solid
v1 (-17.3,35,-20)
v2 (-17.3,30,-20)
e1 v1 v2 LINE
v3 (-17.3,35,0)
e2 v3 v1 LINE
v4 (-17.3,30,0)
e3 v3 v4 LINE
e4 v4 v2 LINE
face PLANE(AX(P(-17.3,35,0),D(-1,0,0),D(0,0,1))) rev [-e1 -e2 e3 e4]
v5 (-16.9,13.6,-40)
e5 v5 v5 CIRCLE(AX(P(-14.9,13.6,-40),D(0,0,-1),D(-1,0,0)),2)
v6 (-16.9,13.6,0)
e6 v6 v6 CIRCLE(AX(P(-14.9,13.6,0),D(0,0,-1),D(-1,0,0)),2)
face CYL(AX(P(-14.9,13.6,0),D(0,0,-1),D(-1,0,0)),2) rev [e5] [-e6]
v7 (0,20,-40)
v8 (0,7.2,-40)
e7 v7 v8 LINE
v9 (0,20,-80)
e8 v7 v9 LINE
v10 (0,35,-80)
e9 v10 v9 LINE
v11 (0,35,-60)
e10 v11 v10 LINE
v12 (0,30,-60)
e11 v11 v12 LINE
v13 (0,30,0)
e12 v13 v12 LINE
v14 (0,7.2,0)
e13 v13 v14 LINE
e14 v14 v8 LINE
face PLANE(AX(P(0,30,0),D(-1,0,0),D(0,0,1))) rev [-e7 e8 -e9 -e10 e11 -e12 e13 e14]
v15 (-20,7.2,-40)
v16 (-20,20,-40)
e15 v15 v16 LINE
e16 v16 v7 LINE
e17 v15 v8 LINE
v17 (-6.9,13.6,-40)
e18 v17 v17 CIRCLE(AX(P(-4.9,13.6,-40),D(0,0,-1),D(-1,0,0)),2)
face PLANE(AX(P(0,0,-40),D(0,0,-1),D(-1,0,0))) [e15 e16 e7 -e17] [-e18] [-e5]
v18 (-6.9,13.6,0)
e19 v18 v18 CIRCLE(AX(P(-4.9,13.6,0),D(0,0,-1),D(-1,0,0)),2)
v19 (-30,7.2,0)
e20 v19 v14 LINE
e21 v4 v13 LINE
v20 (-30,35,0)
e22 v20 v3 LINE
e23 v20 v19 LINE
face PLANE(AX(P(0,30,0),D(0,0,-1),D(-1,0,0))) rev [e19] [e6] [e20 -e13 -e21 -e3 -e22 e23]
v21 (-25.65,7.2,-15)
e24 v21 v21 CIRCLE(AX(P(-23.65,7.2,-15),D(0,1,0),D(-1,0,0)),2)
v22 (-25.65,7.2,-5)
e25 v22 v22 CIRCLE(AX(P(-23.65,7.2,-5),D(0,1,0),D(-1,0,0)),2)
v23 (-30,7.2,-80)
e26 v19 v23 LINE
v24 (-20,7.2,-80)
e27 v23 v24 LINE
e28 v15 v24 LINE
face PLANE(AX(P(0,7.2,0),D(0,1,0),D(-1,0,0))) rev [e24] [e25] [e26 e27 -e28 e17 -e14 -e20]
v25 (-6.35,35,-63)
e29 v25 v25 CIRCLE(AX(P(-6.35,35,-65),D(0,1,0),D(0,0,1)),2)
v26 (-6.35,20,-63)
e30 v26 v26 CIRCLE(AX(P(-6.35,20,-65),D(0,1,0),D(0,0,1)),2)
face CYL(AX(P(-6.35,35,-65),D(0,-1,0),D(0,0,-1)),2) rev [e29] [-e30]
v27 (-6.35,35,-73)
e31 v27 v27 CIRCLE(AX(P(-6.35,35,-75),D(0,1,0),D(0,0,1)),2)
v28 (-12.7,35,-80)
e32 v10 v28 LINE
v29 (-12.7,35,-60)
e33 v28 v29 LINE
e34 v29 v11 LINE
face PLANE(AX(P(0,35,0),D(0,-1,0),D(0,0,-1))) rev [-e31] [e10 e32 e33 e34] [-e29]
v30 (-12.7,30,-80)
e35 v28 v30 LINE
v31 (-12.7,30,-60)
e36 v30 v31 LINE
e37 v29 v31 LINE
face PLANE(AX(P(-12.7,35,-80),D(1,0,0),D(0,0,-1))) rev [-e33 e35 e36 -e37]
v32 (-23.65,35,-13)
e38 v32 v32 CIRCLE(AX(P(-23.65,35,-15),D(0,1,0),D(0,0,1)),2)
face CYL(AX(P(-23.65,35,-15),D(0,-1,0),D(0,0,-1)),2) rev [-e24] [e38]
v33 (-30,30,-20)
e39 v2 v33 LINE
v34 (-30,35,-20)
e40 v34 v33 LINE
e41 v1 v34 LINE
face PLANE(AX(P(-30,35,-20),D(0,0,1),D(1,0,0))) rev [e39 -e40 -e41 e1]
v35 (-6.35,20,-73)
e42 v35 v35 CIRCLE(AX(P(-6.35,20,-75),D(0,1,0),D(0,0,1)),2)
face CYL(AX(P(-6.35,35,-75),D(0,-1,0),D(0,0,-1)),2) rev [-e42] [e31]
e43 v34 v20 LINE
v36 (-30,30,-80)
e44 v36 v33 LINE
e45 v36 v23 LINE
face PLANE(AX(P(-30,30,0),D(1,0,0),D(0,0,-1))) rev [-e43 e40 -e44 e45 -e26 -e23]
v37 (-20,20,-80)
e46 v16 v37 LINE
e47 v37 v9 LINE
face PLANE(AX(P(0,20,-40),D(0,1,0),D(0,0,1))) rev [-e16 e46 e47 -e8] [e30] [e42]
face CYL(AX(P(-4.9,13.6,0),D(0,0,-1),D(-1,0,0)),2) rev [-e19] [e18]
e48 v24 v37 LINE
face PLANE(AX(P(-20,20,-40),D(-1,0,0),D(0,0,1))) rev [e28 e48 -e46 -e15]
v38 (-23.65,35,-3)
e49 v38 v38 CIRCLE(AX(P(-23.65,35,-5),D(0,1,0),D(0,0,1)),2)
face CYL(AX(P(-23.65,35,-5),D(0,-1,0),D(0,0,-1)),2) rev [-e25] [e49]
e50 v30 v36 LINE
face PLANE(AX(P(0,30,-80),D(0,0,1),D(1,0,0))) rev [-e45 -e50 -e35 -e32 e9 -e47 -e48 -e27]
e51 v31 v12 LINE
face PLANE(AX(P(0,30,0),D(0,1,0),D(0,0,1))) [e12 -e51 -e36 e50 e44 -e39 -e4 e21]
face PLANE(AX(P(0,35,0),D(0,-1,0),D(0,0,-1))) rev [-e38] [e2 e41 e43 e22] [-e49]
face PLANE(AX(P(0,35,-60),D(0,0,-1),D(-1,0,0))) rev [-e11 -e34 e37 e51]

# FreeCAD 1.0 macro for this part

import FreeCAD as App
import Part
import Sketcher
from FreeCAD import Vector

doc = App.newDocument("Part")
params = doc.addObject("Spreadsheet::Sheet", "Params")
for row, (alias, value) in enumerate([
    ("sketch1_width", "30 mm"),
    ("sketch1_height", "80 mm"),
    ("pad1_length", "30 mm"),
    ("sketch2_diameter", "4 mm"),
    ("sketch2_height", "20 mm"),
    ("sketch2_width", "12.7 mm"),
    ("pad2_length", "5 mm"),
    ("sketch3_diameter", "4 mm"),
    ("sketch4_width", "20 mm"),
    ("pocket2_length", "40 mm"),
    ("sketch5_diameter", "4 mm"),
    ("sketch5_width", "30 mm"),
    ("sketch5_height", "7.2 mm"),
], start=1):
    params.set(f"A{row}", alias)
    params.set(f"B{row}", "=" + value)
    params.setAlias(f"B{row}", alias)

body = doc.addObject("PartDesign::Body", "Body")

# Sketch on XZ plane
sketch1 = body.newObject("Sketcher::SketchObject", "Sketch")
sketch1.AttachmentSupport = (doc.getObject("XZ_Plane"), [""])
sketch1.MapMode = "FlatFace"
sketch1.addGeometry([
    Part.LineSegment(Vector(-30, -80, 0), Vector(-30, 0, 0)),
    Part.LineSegment(Vector(-30, 0, 0), Vector(0, 0, 0)),
    Part.LineSegment(Vector(0, 0, 0), Vector(0, -80, 0)),
    Part.LineSegment(Vector(0, -80, 0), Vector(-30, -80, 0)),
], False)
sketch1.addConstraint([
    Sketcher.Constraint("Coincident", 0, 2, 1, 1),
    Sketcher.Constraint("Coincident", 1, 2, 2, 1),
    Sketcher.Constraint("Coincident", 2, 2, 3, 1),
    Sketcher.Constraint("Coincident", 3, 2, 0, 1),
    Sketcher.Constraint("Vertical", 0),
    Sketcher.Constraint("Horizontal", 1),
    Sketcher.Constraint("Vertical", 2),
    Sketcher.Constraint("Horizontal", 3),
    Sketcher.Constraint("Coincident", 1, 2, -1, 1),
    Sketcher.Constraint("DistanceX", 1, 1, 1, 2, 30.0),
    Sketcher.Constraint("DistanceY", 0, 1, 0, 2, 80.0),
])
sketch1.setExpression("Constraints[9]", "Params.sketch1_width")
sketch1.setExpression("Constraints[10]", "Params.sketch1_height")
pad1 = body.newObject("PartDesign::Pad", "Pad")
pad1.Profile = sketch1
pad1.setExpression("Length", "Params.pad1_length")
pad1.Reversed = True

# Sketch on XZ plane
sketch2 = body.newObject("Sketcher::SketchObject", "Sketch001")
sketch2.AttachmentSupport = (doc.getObject("XZ_Plane"), [""])
sketch2.MapMode = "FlatFace"
sketch2.AttachmentOffset = App.Placement(Vector(0, 0, -30), App.Rotation())
sketch2.addGeometry([
    Part.LineSegment(Vector(-30, -20, 0), Vector(-30, 0, 0)),  # 0
    Part.LineSegment(Vector(-30, 0, 0), Vector(-17.3, 0, 0)),  # 1
    Part.LineSegment(Vector(-17.3, 0, 0), Vector(-17.3, -20, 0)),  # 2
    Part.LineSegment(Vector(-17.3, -20, 0), Vector(-30, -20, 0)),  # 3
    Part.Circle(Vector(-23.6, -5, 0), Vector(0, 0, 1), 2),  # 4
    Part.Circle(Vector(-23.6, -15, 0), Vector(0, 0, 1), 2),  # 5
    Part.LineSegment(Vector(-12.7, -80, 0), Vector(-12.7, -60, 0)),  # 6
    Part.LineSegment(Vector(-12.7, -60, 0), Vector(0, -60, 0)),  # 7
    Part.LineSegment(Vector(0, -60, 0), Vector(0, -80, 0)),  # 8
    Part.LineSegment(Vector(0, -80, 0), Vector(-12.7, -80, 0)),  # 9
    Part.Circle(Vector(-6.3, -65, 0), Vector(0, 0, 1), 2),  # 10
    Part.Circle(Vector(-6.3, -75, 0), Vector(0, 0, 1), 2),  # 11
], False)
sketch2.addConstraint([
    Sketcher.Constraint("Coincident", 0, 2, 1, 1),
    Sketcher.Constraint("Coincident", 1, 2, 2, 1),
    Sketcher.Constraint("Coincident", 2, 2, 3, 1),
    Sketcher.Constraint("Coincident", 3, 2, 0, 1),
    Sketcher.Constraint("Coincident", 6, 2, 7, 1),
    Sketcher.Constraint("Coincident", 7, 2, 8, 1),
    Sketcher.Constraint("Coincident", 8, 2, 9, 1),
    Sketcher.Constraint("Coincident", 9, 2, 6, 1),
    Sketcher.Constraint("Vertical", 0),
    Sketcher.Constraint("Horizontal", 1),
    Sketcher.Constraint("Vertical", 2),
    Sketcher.Constraint("Horizontal", 3),
    Sketcher.Constraint("Vertical", 6),
    Sketcher.Constraint("Horizontal", 7),
    Sketcher.Constraint("Vertical", 8),
    Sketcher.Constraint("Horizontal", 9),
    Sketcher.Constraint("Equal", 4, 5),
    Sketcher.Constraint("Equal", 5, 10),
    Sketcher.Constraint("Equal", 10, 11),
    Sketcher.Constraint("PointOnObject", 0, 2, -1),
    Sketcher.Constraint("PointOnObject", 7, 2, -2),
    Sketcher.Constraint("Vertical", 4, 3, 5, 3),
    Sketcher.Constraint("Vertical", 10, 3, 11, 3),
    Sketcher.Constraint("Equal", 3, 7),
    Sketcher.Constraint("Equal", 2, 6),
    Sketcher.Constraint("Diameter", 4, 4.0),
    Sketcher.Constraint("DistanceY", 0, 1, 0, 2, 20.0),
    Sketcher.Constraint("DistanceX", 1, 1, 1, 2, 12.7),
    Sketcher.Constraint("DistanceY", 4, 3, -1, 1, 5.0),
    Sketcher.Constraint("DistanceY", 5, 3, -1, 1, 15.0),
    Sketcher.Constraint("DistanceY", 10, 3, -1, 1, 65.0),
    Sketcher.Constraint("DistanceY", 11, 3, -1, 1, 75.0),
    Sketcher.Constraint("DistanceX", 0, 2, -1, 1, 30.0),
    Sketcher.Constraint("DistanceY", 6, 2, -1, 1, 60.0),
    Sketcher.Constraint("DistanceX", 5, 3, 10, 3, 17.3),
    Sketcher.Constraint("DistanceX", 4, 3, -1, 1, 23.65),
])
sketch2.setExpression("Constraints[25]", "Params.sketch2_diameter")
sketch2.setExpression("Constraints[26]", "Params.sketch2_height")
sketch2.setExpression("Constraints[27]", "Params.sketch2_width")
pad2 = body.newObject("PartDesign::Pad", "Pad001")
pad2.Profile = sketch2
pad2.setExpression("Length", "Params.pad2_length")
pad2.Reversed = True

# Sketch on XZ plane
sketch3 = body.newObject("Sketcher::SketchObject", "Sketch002")
sketch3.AttachmentSupport = (doc.getObject("XZ_Plane"), [""])
sketch3.MapMode = "FlatFace"
sketch3.AttachmentOffset = App.Placement(Vector(0, 0, -35), App.Rotation())
sketch3.addGeometry([
    Part.Circle(Vector(-23.6, -15, 0), Vector(0, 0, 1), 2),
    Part.Circle(Vector(-23.6, -5, 0), Vector(0, 0, 1), 2),
    Part.Circle(Vector(-6.3, -75, 0), Vector(0, 0, 1), 2),
    Part.Circle(Vector(-6.3, -65, 0), Vector(0, 0, 1), 2),
], False)
sketch3.addConstraint([
    Sketcher.Constraint("Equal", 0, 1),
    Sketcher.Constraint("Equal", 1, 2),
    Sketcher.Constraint("Equal", 2, 3),
    Sketcher.Constraint("Vertical", 0, 3, 1, 3),
    Sketcher.Constraint("Vertical", 2, 3, 3, 3),
    Sketcher.Constraint("Diameter", 0, 4.0),
    Sketcher.Constraint("DistanceY", 0, 3, -1, 1, 15.0),
    Sketcher.Constraint("DistanceY", 1, 3, -1, 1, 5.0),
    Sketcher.Constraint("DistanceY", 2, 3, -1, 1, 75.0),
    Sketcher.Constraint("DistanceY", 3, 3, -1, 1, 65.0),
    Sketcher.Constraint("DistanceX", 0, 3, 2, 3, 17.3),
    Sketcher.Constraint("DistanceX", 0, 3, -1, 1, 23.65),
])
sketch3.setExpression("Constraints[5]", "Params.sketch3_diameter")
pocket1 = body.newObject("PartDesign::Pocket", "Pocket")
pocket1.Profile = sketch3
pocket1.Type = "ThroughAll"
pocket1.Reversed = True

# Sketch on XY plane
sketch4 = body.newObject("Sketcher::SketchObject", "Sketch003")
sketch4.AttachmentSupport = (doc.getObject("XY_Plane"), [""])
sketch4.MapMode = "FlatFace"
sketch4.AttachmentOffset = App.Placement(Vector(0, 0, -80), App.Rotation())
sketch4.addGeometry([
    Part.LineSegment(Vector(0, 20, 0), Vector(0, 0, 0)),
    Part.LineSegment(Vector(0, 0, 0), Vector(-20, 0, 0)),
    Part.LineSegment(Vector(-20, 0, 0), Vector(-20, 20, 0)),
    Part.LineSegment(Vector(-20, 20, 0), Vector(0, 20, 0)),
], False)
sketch4.addConstraint([
    Sketcher.Constraint("Coincident", 0, 2, 1, 1),
    Sketcher.Constraint("Coincident", 1, 2, 2, 1),
    Sketcher.Constraint("Coincident", 2, 2, 3, 1),
    Sketcher.Constraint("Coincident", 3, 2, 0, 1),
    Sketcher.Constraint("Vertical", 0),
    Sketcher.Constraint("Horizontal", 1),
    Sketcher.Constraint("Vertical", 2),
    Sketcher.Constraint("Horizontal", 3),
    Sketcher.Constraint("Coincident", 0, 2, -1, 1),
    Sketcher.Constraint("Equal", 3, 0),
    Sketcher.Constraint("DistanceX", 1, 2, 1, 1, 20.0),
])
sketch4.setExpression("Constraints[10]", "Params.sketch4_width")
pocket2 = body.newObject("PartDesign::Pocket", "Pocket001")
pocket2.Profile = sketch4
pocket2.setExpression("Length", "Params.pocket2_length")
pocket2.Reversed = True

# Sketch on XY plane
sketch5 = body.newObject("Sketcher::SketchObject", "Sketch004")
sketch5.AttachmentSupport = (doc.getObject("XY_Plane"), [""])
sketch5.MapMode = "FlatFace"
sketch5.AttachmentOffset = App.Placement(Vector(0, 0, -80), App.Rotation())
sketch5.addGeometry([
    Part.Circle(Vector(-4.9, 13.6, 0), Vector(0, 0, 1), 2),  # 0
    Part.Circle(Vector(-14.9, 13.6, 0), Vector(0, 0, 1), 2),  # 1
    Part.LineSegment(Vector(0, 7.2, 0), Vector(0, 0, 0)),  # 2
    Part.LineSegment(Vector(0, 0, 0), Vector(-30, 0, 0)),  # 3
    Part.LineSegment(Vector(-30, 0, 0), Vector(-30, 7.2, 0)),  # 4
    Part.LineSegment(Vector(-30, 7.2, 0), Vector(0, 7.2, 0)),  # 5
], False)
sketch5.addConstraint([
    Sketcher.Constraint("Coincident", 2, 2, 3, 1),
    Sketcher.Constraint("Coincident", 3, 2, 4, 1),
    Sketcher.Constraint("Coincident", 4, 2, 5, 1),
    Sketcher.Constraint("Coincident", 5, 2, 2, 1),
    Sketcher.Constraint("Vertical", 2),
    Sketcher.Constraint("Horizontal", 3),
    Sketcher.Constraint("Vertical", 4),
    Sketcher.Constraint("Horizontal", 5),
    Sketcher.Constraint("Coincident", 2, 2, -1, 1),
    Sketcher.Constraint("Equal", 0, 1),
    Sketcher.Constraint("Horizontal", 0, 3, 1, 3),
    Sketcher.Constraint("Diameter", 0, 4.0),
    Sketcher.Constraint("DistanceX", 3, 2, 3, 1, 30.0),
    Sketcher.Constraint("DistanceY", 2, 2, 2, 1, 7.2),
    Sketcher.Constraint("DistanceX", 1, 3, 0, 3, 10.0),
    Sketcher.Constraint("DistanceX", 0, 3, -1, 1, 4.9),
    Sketcher.Constraint("DistanceY", -1, 1, 0, 3, 13.6),
])
sketch5.setExpression("Constraints[11]", "Params.sketch5_diameter")
sketch5.setExpression("Constraints[12]", "Params.sketch5_width")
sketch5.setExpression("Constraints[13]", "Params.sketch5_height")
pocket3 = body.newObject("PartDesign::Pocket", "Pocket002")
pocket3.Profile = sketch5
pocket3.Type = "ThroughAll"
pocket3.Reversed = True

doc.recompute()
